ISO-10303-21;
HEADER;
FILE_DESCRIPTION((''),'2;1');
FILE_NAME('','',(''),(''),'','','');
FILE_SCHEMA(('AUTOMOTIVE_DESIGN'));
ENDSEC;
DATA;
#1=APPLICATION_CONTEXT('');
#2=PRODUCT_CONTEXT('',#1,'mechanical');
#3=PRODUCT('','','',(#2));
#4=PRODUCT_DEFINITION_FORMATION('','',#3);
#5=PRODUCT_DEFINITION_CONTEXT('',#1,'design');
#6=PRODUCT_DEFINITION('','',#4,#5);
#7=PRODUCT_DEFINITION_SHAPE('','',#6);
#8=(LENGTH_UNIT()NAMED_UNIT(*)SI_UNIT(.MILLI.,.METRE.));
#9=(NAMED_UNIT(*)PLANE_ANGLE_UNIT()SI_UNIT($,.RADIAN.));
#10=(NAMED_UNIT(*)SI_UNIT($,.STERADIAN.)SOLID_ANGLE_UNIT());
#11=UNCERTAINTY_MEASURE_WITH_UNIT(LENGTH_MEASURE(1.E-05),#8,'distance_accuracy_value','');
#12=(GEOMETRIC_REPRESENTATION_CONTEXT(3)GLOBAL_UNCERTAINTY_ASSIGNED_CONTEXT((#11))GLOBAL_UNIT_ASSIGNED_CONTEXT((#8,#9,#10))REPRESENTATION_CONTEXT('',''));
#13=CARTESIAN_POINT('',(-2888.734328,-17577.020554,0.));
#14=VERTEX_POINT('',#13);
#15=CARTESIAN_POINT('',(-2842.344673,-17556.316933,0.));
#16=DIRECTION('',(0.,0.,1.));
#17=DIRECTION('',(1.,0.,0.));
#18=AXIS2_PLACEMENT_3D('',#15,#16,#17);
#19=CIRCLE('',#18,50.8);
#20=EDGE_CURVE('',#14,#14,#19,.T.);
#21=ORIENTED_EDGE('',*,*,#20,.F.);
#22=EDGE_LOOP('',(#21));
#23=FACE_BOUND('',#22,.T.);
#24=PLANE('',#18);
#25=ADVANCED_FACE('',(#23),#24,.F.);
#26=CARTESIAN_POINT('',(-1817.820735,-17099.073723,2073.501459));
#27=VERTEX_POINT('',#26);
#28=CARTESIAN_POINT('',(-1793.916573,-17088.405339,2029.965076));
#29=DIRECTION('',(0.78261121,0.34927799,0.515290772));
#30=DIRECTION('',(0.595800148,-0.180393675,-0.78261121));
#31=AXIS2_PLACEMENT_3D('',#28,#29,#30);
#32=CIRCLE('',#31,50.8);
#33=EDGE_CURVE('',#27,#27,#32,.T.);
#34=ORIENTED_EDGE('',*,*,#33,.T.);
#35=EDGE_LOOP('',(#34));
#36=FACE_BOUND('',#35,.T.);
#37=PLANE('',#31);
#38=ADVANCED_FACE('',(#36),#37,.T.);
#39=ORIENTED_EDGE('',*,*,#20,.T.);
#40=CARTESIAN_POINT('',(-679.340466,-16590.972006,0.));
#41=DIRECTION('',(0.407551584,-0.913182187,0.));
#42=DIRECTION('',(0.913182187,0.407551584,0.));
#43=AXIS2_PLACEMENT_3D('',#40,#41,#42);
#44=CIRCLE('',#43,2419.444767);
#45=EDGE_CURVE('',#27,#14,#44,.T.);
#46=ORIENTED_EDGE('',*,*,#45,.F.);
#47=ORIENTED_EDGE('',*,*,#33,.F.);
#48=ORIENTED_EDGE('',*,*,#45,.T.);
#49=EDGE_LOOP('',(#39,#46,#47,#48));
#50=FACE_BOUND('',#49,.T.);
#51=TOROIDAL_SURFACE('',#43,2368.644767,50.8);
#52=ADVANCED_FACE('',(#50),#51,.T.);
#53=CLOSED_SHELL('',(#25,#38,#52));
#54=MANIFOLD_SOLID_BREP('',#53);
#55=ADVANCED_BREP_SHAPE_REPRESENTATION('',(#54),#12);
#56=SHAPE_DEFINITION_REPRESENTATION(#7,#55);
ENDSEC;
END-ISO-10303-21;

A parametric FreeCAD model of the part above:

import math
import FreeCAD as App
import Part
import Sketcher
from FreeCAD import Vector
Q = App.Units.Quantity

doc = App.newDocument("Part")
body = doc.addObject("PartDesign::Body", "Body")

sketch1 = body.newObject("Sketcher::SketchObject", "Sketch")
sketch1.AttachmentSupport = (doc.getObject("XY_Plane"), [""])
sketch1.MapMode = "FlatFace"
sketch1.addGeometry(Part.Circle(Vector(-2842.344673, -17556.316933, 0), Vector(0, 0, 1), 50.8), False)
sketch1.addConstraint(Sketcher.Constraint("Diameter", 0, Q("4 in")))
sketch1.addConstraint(Sketcher.Constraint("DistanceX", 0, 3, -1, 1, 2842.344673))
sketch1.addConstraint(Sketcher.Constraint("DistanceY", 0, 3, -1, 1, 17556.316933))

sketch2 = body.newObject("Sketcher::SketchObject", "Sketch001")
sketch2.Placement = App.Placement(Vector(6061.805628, -13582.410506, 0), App.Rotation(Vector(0.913182187, 0.407551584, 0), Vector(0, 0, 1), Vector(0.407551584, -0.913182187, 0), "ZXY"))
sketch2.addGeometry(Part.ArcOfCircle(Part.Circle(Vector(-7382.038539, 0, 0), Vector(0, 0, 1), 2368.644767), math.radians(121.016893), math.radians(180)), False)
sketch2.addConstraint(Sketcher.Constraint("PointOnObject", 0, 3, -1))
sketch2.addConstraint(Sketcher.Constraint("PointOnObject", 0, 2, -1))
sketch2.addConstraint(Sketcher.Constraint("Radius", 0, 2368.644767))
sketch2.addConstraint(Sketcher.Constraint("DistanceX", 0, 3, -1, 1, 7382.038539))
sketch2.addConstraint(Sketcher.Constraint("DistanceX", 0, 1, -1, 1, 8602.579328))
doc.recompute()

additivepipe = body.newObject("PartDesign::AdditivePipe", "AdditivePipe")
additivepipe.Profile = sketch1
additivepipe.Spine = (sketch2, ["Edge1"])

doc.recompute()
